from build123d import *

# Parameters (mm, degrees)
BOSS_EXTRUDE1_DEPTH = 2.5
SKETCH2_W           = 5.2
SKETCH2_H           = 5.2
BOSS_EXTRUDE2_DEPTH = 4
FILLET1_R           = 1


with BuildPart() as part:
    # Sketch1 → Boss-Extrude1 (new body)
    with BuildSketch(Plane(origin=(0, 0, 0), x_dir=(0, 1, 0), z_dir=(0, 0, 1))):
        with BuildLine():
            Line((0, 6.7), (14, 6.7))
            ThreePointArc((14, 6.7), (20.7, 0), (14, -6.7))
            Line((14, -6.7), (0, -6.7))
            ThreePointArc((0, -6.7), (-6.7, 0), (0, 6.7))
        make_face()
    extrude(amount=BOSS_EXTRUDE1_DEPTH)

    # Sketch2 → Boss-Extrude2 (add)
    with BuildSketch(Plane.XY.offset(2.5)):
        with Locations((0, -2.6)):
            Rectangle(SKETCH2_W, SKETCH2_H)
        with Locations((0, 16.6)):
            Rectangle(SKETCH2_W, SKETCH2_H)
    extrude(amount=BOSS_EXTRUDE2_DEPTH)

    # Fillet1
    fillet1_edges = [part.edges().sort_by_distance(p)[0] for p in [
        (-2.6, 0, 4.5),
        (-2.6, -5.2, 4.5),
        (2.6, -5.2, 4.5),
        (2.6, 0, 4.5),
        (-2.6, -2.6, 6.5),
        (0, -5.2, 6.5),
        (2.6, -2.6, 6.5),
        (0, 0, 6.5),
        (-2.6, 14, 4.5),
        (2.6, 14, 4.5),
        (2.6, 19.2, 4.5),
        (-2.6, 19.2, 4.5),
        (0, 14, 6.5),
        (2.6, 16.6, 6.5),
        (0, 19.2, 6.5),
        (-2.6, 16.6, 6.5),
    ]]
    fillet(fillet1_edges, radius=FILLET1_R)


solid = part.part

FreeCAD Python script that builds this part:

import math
import FreeCAD as App
import Part
import Sketcher

V = App.Vector


def edges_at(feature, points):
    """Names of the edges that pass closest to the given points."""
    edges = feature.Shape.Edges
    near = lambda p: min(range(len(edges)), key=lambda i: edges[i].distToShape(Part.Vertex(*p))[0])
    return sorted({f"Edge{near(p) + 1}" for p in points})

doc = App.newDocument("Part")
body = doc.addObject("PartDesign::Body", "Body")

sketch1 = doc.addObject("Sketcher::SketchObject", "Sketch")
body.addObject(sketch1)
sketch1.AttachmentSupport = (doc.XY_Plane, [""])
sketch1.MapMode = "FlatFace"
sketch1.addGeometry([
    Part.LineSegment(V(-6.7, 14, 0), V(-6.7, 0, 0)),
    Part.ArcOfCircle(Part.Circle(V(0, 0, 0), V(0, 0, 1), 6.7), math.radians(180), math.radians(360)),
    Part.LineSegment(V(6.7, 0, 0), V(6.7, 14, 0)),
    Part.ArcOfCircle(Part.Circle(V(0, 14, 0), V(0, 0, 1), 6.7), math.radians(0), math.radians(180)),
], False)
sketch1.addConstraint([
    Sketcher.Constraint("Tangent", 0, 2, 1, 1),
    Sketcher.Constraint("Tangent", 1, 2, 2, 1),
    Sketcher.Constraint("Tangent", 2, 2, 3, 1),
    Sketcher.Constraint("Tangent", 3, 2, 0, 1),
    Sketcher.Constraint("Vertical", 0),
    Sketcher.Constraint("Vertical", 2),
    Sketcher.Constraint("Coincident", 1, 3, -1, 1),
    Sketcher.Constraint("Radius", 1, 6.7),
    Sketcher.Constraint("DistanceY", 0, 2, 0, 1, 14.0),
])
pad1 = doc.addObject("PartDesign::Pad", "Pad")
body.addObject(pad1)
pad1.Profile = sketch1
pad1.Length = 2.5

sketch2 = doc.addObject("Sketcher::SketchObject", "Sketch001")
body.addObject(sketch2)
sketch2.AttachmentSupport = (doc.XY_Plane, [""])
sketch2.MapMode = "FlatFace"
sketch2.AttachmentOffset = App.Placement(V(0, 0, 2.5), App.Rotation())
sketch2.addGeometry([
    Part.LineSegment(V(-2.6, 0, 0), V(-2.6, -5.2, 0)),
    Part.LineSegment(V(-2.6, -5.2, 0), V(2.6, -5.2, 0)),
    Part.LineSegment(V(2.6, -5.2, 0), V(2.6, 0, 0)),
    Part.LineSegment(V(2.6, 0, 0), V(-2.6, 0, 0)),
    Part.LineSegment(V(-2.6, 19.2, 0), V(-2.6, 14, 0)),
    Part.LineSegment(V(-2.6, 14, 0), V(2.6, 14, 0)),
    Part.LineSegment(V(2.6, 14, 0), V(2.6, 19.2, 0)),
    Part.LineSegment(V(2.6, 19.2, 0), V(-2.6, 19.2, 0)),
], False)
sketch2.addConstraint([
    Sketcher.Constraint("Coincident", 0, 2, 1, 1),
    Sketcher.Constraint("Coincident", 1, 2, 2, 1),
    Sketcher.Constraint("Coincident", 2, 2, 3, 1),
    Sketcher.Constraint("Coincident", 3, 2, 0, 1),
    Sketcher.Constraint("Coincident", 4, 2, 5, 1),
    Sketcher.Constraint("Coincident", 5, 2, 6, 1),
    Sketcher.Constraint("Coincident", 6, 2, 7, 1),
    Sketcher.Constraint("Coincident", 7, 2, 4, 1),
    Sketcher.Constraint("Vertical", 0),
    Sketcher.Constraint("Horizontal", 1),
    Sketcher.Constraint("Vertical", 2),
    Sketcher.Constraint("Horizontal", 3),
    Sketcher.Constraint("Vertical", 4),
    Sketcher.Constraint("Horizontal", 5),
    Sketcher.Constraint("Vertical", 6),
    Sketcher.Constraint("Horizontal", 7),
    Sketcher.Constraint("Symmetric", 2, 2, 3, 2, -1, 1),
    Sketcher.Constraint("Vertical", 3, 2, 4, 2),
    Sketcher.Constraint("Vertical", 2, 2, 5, 2),
    Sketcher.Constraint("Equal", 7, 0),
    Sketcher.Constraint("Equal", 2, 4),
    Sketcher.Constraint("DistanceX", 1, 1, 1, 2, 5.2),
    Sketcher.Constraint("DistanceY", -1, 1, 4, 2, 14.0),
])
pad2 = doc.addObject("PartDesign::Pad", "Pad001")
body.addObject(pad2)
pad2.Profile = sketch2
pad2.Length = 4
doc.recompute()

fillet = doc.addObject("PartDesign::Fillet", "Fillet")
body.addObject(fillet)
fillet.Base = (pad2, edges_at(pad2, [
    (-2.6, 0, 4.5),
    (-2.6, -5.2, 4.5),
    (2.6, -5.2, 4.5),
    (2.6, 0, 4.5),
    (-2.6, -2.6, 6.5),
    (0, -5.2, 6.5),
    (2.6, -2.6, 6.5),
    (0, 0, 6.5),
    (-2.6, 14, 4.5),
    (2.6, 14, 4.5),
    (2.6, 19.2, 4.5),
    (-2.6, 19.2, 4.5),
    (0, 14, 6.5),
    (2.6, 16.6, 6.5),
    (0, 19.2, 6.5),
    (-2.6, 16.6, 6.5),
]))
fillet.Radius = 1

doc.recompute()
